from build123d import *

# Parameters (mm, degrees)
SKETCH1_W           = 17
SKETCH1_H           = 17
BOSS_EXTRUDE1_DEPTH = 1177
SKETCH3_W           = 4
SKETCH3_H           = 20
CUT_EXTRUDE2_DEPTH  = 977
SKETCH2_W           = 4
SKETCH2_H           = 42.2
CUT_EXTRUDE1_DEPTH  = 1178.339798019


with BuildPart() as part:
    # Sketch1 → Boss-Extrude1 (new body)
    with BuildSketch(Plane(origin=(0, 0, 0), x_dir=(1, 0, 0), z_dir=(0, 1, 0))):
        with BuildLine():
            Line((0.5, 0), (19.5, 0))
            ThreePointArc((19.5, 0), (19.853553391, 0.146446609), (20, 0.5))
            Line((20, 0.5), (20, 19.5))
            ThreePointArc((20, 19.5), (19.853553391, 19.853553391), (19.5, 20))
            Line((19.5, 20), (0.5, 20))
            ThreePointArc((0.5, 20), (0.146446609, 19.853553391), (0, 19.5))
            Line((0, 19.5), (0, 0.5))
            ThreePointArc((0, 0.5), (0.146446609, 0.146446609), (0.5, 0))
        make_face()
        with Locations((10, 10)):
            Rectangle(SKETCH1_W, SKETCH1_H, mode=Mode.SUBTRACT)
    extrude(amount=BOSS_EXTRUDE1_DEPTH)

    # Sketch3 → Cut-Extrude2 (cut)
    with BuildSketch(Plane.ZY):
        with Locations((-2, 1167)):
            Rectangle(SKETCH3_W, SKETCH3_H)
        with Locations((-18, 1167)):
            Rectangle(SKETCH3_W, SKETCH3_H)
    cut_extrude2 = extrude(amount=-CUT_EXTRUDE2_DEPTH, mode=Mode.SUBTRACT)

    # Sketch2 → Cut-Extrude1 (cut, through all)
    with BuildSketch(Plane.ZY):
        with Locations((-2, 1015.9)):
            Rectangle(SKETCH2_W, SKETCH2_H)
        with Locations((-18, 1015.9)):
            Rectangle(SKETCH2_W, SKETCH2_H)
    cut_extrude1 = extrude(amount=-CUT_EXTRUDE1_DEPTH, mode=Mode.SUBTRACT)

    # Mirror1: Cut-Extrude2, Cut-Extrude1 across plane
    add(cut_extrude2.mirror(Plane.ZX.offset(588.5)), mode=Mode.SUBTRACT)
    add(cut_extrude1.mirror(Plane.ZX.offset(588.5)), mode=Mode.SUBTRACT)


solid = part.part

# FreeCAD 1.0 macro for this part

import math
import FreeCAD as App
import Part
import Sketcher
from FreeCAD import Vector
Q = App.Units.Quantity

doc = App.newDocument("Part")
body = doc.addObject("PartDesign::Body", "Body")

# Sketch on XZ plane
sketch1 = body.newObject("Sketcher::SketchObject", "Sketch")
sketch1.AttachmentSupport = (doc.getObject("XZ_Plane"), [""])
sketch1.MapMode = "FlatFace"
sketch1.addGeometry(Part.LineSegment(Vector(0.5, 0, 0), Vector(19.5, 0, 0)), False)
sketch1.addGeometry(Part.ArcOfCircle(Part.Circle(Vector(19.5, -0.5, 0), Vector(0, 0, 1), 0.5), math.radians(0), math.radians(90)), False)
sketch1.addGeometry(Part.LineSegment(Vector(20, -0.5, 0), Vector(20, -19.5, 0)), False)
sketch1.addGeometry(Part.ArcOfCircle(Part.Circle(Vector(19.5, -19.5, 0), Vector(0, 0, 1), 0.5), math.radians(-90), math.radians(0)), False)
sketch1.addGeometry(Part.LineSegment(Vector(19.5, -20, 0), Vector(0.5, -20, 0)), False)
sketch1.addGeometry(Part.ArcOfCircle(Part.Circle(Vector(0.5, -19.5, 0), Vector(0, 0, 1), 0.5), math.radians(180), math.radians(270)), False)
sketch1.addGeometry(Part.LineSegment(Vector(0, -19.5, 0), Vector(0, -0.5, 0)), False)
sketch1.addGeometry(Part.ArcOfCircle(Part.Circle(Vector(0.5, -0.5, 0), Vector(0, 0, 1), 0.5), math.radians(90), math.radians(180)), False)
sketch1.addGeometry(Part.LineSegment(Vector(18.5, -1.5, 0), Vector(1.5, -1.5, 0)), False)
sketch1.addGeometry(Part.LineSegment(Vector(1.5, -1.5, 0), Vector(1.5, -18.5, 0)), False)
sketch1.addGeometry(Part.LineSegment(Vector(1.5, -18.5, 0), Vector(18.5, -18.5, 0)), False)
sketch1.addGeometry(Part.LineSegment(Vector(18.5, -18.5, 0), Vector(18.5, -1.5, 0)), False)
sketch1.addConstraint(Sketcher.Constraint("Tangent", 0, 2, 1, 2))
sketch1.addConstraint(Sketcher.Constraint("Tangent", 1, 1, 2, 1))
sketch1.addConstraint(Sketcher.Constraint("Tangent", 2, 2, 3, 2))
sketch1.addConstraint(Sketcher.Constraint("Tangent", 3, 1, 4, 1))
sketch1.addConstraint(Sketcher.Constraint("Tangent", 4, 2, 5, 2))
sketch1.addConstraint(Sketcher.Constraint("Tangent", 5, 1, 6, 1))
sketch1.addConstraint(Sketcher.Constraint("Tangent", 6, 2, 7, 2))
sketch1.addConstraint(Sketcher.Constraint("Tangent", 7, 1, 0, 1))
sketch1.addConstraint(Sketcher.Constraint("Coincident", 8, 2, 9, 1))
sketch1.addConstraint(Sketcher.Constraint("Coincident", 9, 2, 10, 1))
sketch1.addConstraint(Sketcher.Constraint("Coincident", 10, 2, 11, 1))
sketch1.addConstraint(Sketcher.Constraint("Coincident", 11, 2, 8, 1))
sketch1.addConstraint(Sketcher.Constraint("Horizontal", 0))
sketch1.addConstraint(Sketcher.Constraint("Vertical", 2))
sketch1.addConstraint(Sketcher.Constraint("Horizontal", 4))
sketch1.addConstraint(Sketcher.Constraint("Vertical", 6))
sketch1.addConstraint(Sketcher.Constraint("Horizontal", 8))
sketch1.addConstraint(Sketcher.Constraint("Vertical", 9))
sketch1.addConstraint(Sketcher.Constraint("Horizontal", 10))
sketch1.addConstraint(Sketcher.Constraint("Vertical", 11))
sketch1.addConstraint(Sketcher.Constraint("Equal", 1, 3))
sketch1.addConstraint(Sketcher.Constraint("Equal", 3, 5))
sketch1.addConstraint(Sketcher.Constraint("Equal", 5, 7))
sketch1.addConstraint(Sketcher.Constraint("PointOnObject", 0, 2, -1))
sketch1.addConstraint(Sketcher.Constraint("PointOnObject", 5, 1, -2))
sketch1.addConstraint(Sketcher.Constraint("Equal", 4, 2))
sketch1.addConstraint(Sketcher.Constraint("Equal", 10, 9))
sketch1.addConstraint(Sketcher.Constraint("Radius", 1, Q("0.5 mm")))
sketch1.addConstraint(Sketcher.Constraint("DistanceX", 0, 1, 0, 2, Q("19 mm")))
sketch1.addConstraint(Sketcher.Constraint("DistanceX", 8, 2, 8, 1, Q("17 mm")))
sketch1.addConstraint(Sketcher.Constraint("DistanceX", 7, 3, 8, 2, Q("1 mm")))
sketch1.addConstraint(Sketcher.Constraint("DistanceY", 8, 2, 7, 3, Q("1 mm")))
pad1 = body.newObject("PartDesign::Pad", "Pad")
pad1.Profile = sketch1
pad1.Length = 1177
pad1.Reversed = True

# Sketch on YZ plane
sketch2 = body.newObject("Sketcher::SketchObject", "Sketch001")
sketch2.AttachmentSupport = (doc.getObject("YZ_Plane"), [""])
sketch2.MapMode = "FlatFace"
sketch2.addGeometry(Part.LineSegment(Vector(1177, -4, 0), Vector(1157, -4, 0)), False)
sketch2.addGeometry(Part.LineSegment(Vector(1157, -4, 0), Vector(1157, 0, 0)), False)
sketch2.addGeometry(Part.LineSegment(Vector(1157, 0, 0), Vector(1177, 0, 0)), False)
sketch2.addGeometry(Part.LineSegment(Vector(1177, 0, 0), Vector(1177, -4, 0)), False)
sketch2.addGeometry(Part.LineSegment(Vector(1177, -20, 0), Vector(1157, -20, 0)), False)
sketch2.addGeometry(Part.LineSegment(Vector(1157, -20, 0), Vector(1157, -16, 0)), False)
sketch2.addGeometry(Part.LineSegment(Vector(1157, -16, 0), Vector(1177, -16, 0)), False)
sketch2.addGeometry(Part.LineSegment(Vector(1177, -16, 0), Vector(1177, -20, 0)), False)
sketch2.addConstraint(Sketcher.Constraint("Coincident", 0, 2, 1, 1))
sketch2.addConstraint(Sketcher.Constraint("Coincident", 1, 2, 2, 1))
sketch2.addConstraint(Sketcher.Constraint("Coincident", 2, 2, 3, 1))
sketch2.addConstraint(Sketcher.Constraint("Coincident", 3, 2, 0, 1))
sketch2.addConstraint(Sketcher.Constraint("Coincident", 4, 2, 5, 1))
sketch2.addConstraint(Sketcher.Constraint("Coincident", 5, 2, 6, 1))
sketch2.addConstraint(Sketcher.Constraint("Coincident", 6, 2, 7, 1))
sketch2.addConstraint(Sketcher.Constraint("Coincident", 7, 2, 4, 1))
sketch2.addConstraint(Sketcher.Constraint("Horizontal", 0))
sketch2.addConstraint(Sketcher.Constraint("Vertical", 1))
sketch2.addConstraint(Sketcher.Constraint("Horizontal", 2))
sketch2.addConstraint(Sketcher.Constraint("Vertical", 3))
sketch2.addConstraint(Sketcher.Constraint("Horizontal", 4))
sketch2.addConstraint(Sketcher.Constraint("Vertical", 5))
sketch2.addConstraint(Sketcher.Constraint("Horizontal", 6))
sketch2.addConstraint(Sketcher.Constraint("Vertical", 7))
sketch2.addConstraint(Sketcher.Constraint("PointOnObject", 1, 2, -1))
sketch2.addConstraint(Sketcher.Constraint("Vertical", 1, 2, 4, 2))
sketch2.addConstraint(Sketcher.Constraint("Vertical", 3, 2, 6, 2))
sketch2.addConstraint(Sketcher.Constraint("Equal", 3, 5))
sketch2.addConstraint(Sketcher.Constraint("DistanceX", 0, 2, 0, 1, Q("20 mm")))
sketch2.addConstraint(Sketcher.Constraint("DistanceY", 1, 1, 1, 2, Q("4 mm")))
sketch2.addConstraint(Sketcher.Constraint("DistanceX", -1, 1, 0, 2, Q("1157 mm")))
sketch2.addConstraint(Sketcher.Constraint("DistanceY", 4, 2, -1, 1, Q("20 mm")))
pocket1 = body.newObject("PartDesign::Pocket", "Pocket")
pocket1.Profile = sketch2
pocket1.Length = 977
pocket1.Reversed = True

# Sketch on YZ plane
sketch3 = body.newObject("Sketcher::SketchObject", "Sketch002")
sketch3.AttachmentSupport = (doc.getObject("YZ_Plane"), [""])
sketch3.MapMode = "FlatFace"
sketch3.addGeometry(Part.LineSegment(Vector(1037, -4, 0), Vector(994.8, -4, 0)), False)
sketch3.addGeometry(Part.LineSegment(Vector(994.8, -4, 0), Vector(994.8, 0, 0)), False)
sketch3.addGeometry(Part.LineSegment(Vector(994.8, 0, 0), Vector(1037, 0, 0)), False)
sketch3.addGeometry(Part.LineSegment(Vector(1037, 0, 0), Vector(1037, -4, 0)), False)
sketch3.addGeometry(Part.LineSegment(Vector(1037, -20, 0), Vector(994.8, -20, 0)), False)
sketch3.addGeometry(Part.LineSegment(Vector(994.8, -20, 0), Vector(994.8, -16, 0)), False)
sketch3.addGeometry(Part.LineSegment(Vector(994.8, -16, 0), Vector(1037, -16, 0)), False)
sketch3.addGeometry(Part.LineSegment(Vector(1037, -16, 0), Vector(1037, -20, 0)), False)
sketch3.addConstraint(Sketcher.Constraint("Coincident", 0, 2, 1, 1))
sketch3.addConstraint(Sketcher.Constraint("Coincident", 1, 2, 2, 1))
sketch3.addConstraint(Sketcher.Constraint("Coincident", 2, 2, 3, 1))
sketch3.addConstraint(Sketcher.Constraint("Coincident", 3, 2, 0, 1))
sketch3.addConstraint(Sketcher.Constraint("Coincident", 4, 2, 5, 1))
sketch3.addConstraint(Sketcher.Constraint("Coincident", 5, 2, 6, 1))
sketch3.addConstraint(Sketcher.Constraint("Coincident", 6, 2, 7, 1))
sketch3.addConstraint(Sketcher.Constraint("Coincident", 7, 2, 4, 1))
sketch3.addConstraint(Sketcher.Constraint("Horizontal", 0))
sketch3.addConstraint(Sketcher.Constraint("Vertical", 1))
sketch3.addConstraint(Sketcher.Constraint("Horizontal", 2))
sketch3.addConstraint(Sketcher.Constraint("Vertical", 3))
sketch3.addConstraint(Sketcher.Constraint("Horizontal", 4))
sketch3.addConstraint(Sketcher.Constraint("Vertical", 5))
sketch3.addConstraint(Sketcher.Constraint("Horizontal", 6))
sketch3.addConstraint(Sketcher.Constraint("Vertical", 7))
sketch3.addConstraint(Sketcher.Constraint("PointOnObject", 1, 2, -1))
sketch3.addConstraint(Sketcher.Constraint("Vertical", 1, 2, 4, 2))
sketch3.addConstraint(Sketcher.Constraint("Vertical", 3, 2, 6, 2))
sketch3.addConstraint(Sketcher.Constraint("Equal", 3, 5))
sketch3.addConstraint(Sketcher.Constraint("DistanceY", 1, 1, 1, 2, Q("4 mm")))
sketch3.addConstraint(Sketcher.Constraint("DistanceX", 0, 2, 0, 1, Q("42.2 mm")))
sketch3.addConstraint(Sketcher.Constraint("DistanceX", -1, 1, 2, 2, Q("1037 mm")))
sketch3.addConstraint(Sketcher.Constraint("DistanceY", 4, 2, -1, 1, Q("20 mm")))
pocket2 = body.newObject("PartDesign::Pocket", "Pocket001")
pocket2.Profile = sketch3
pocket2.Type = "ThroughAll"
pocket2.Reversed = True
doc.recompute()

datumplane = body.newObject("PartDesign::Plane", "DatumPlane")
datumplane.AttachmentSupport = (doc.getObject("XZ_Plane"), [""])
datumplane.MapMode = "FlatFace"
datumplane.AttachmentOffset = App.Placement(Vector(0, 0, -588.5), App.Rotation())
mirrored = body.newObject("PartDesign::Mirrored", "Mirrored")
mirrored.Originals = [pocket1, pocket2]
mirrored.MirrorPlane = (datumplane, [""])
body.Tip = mirrored

doc.recompute()
